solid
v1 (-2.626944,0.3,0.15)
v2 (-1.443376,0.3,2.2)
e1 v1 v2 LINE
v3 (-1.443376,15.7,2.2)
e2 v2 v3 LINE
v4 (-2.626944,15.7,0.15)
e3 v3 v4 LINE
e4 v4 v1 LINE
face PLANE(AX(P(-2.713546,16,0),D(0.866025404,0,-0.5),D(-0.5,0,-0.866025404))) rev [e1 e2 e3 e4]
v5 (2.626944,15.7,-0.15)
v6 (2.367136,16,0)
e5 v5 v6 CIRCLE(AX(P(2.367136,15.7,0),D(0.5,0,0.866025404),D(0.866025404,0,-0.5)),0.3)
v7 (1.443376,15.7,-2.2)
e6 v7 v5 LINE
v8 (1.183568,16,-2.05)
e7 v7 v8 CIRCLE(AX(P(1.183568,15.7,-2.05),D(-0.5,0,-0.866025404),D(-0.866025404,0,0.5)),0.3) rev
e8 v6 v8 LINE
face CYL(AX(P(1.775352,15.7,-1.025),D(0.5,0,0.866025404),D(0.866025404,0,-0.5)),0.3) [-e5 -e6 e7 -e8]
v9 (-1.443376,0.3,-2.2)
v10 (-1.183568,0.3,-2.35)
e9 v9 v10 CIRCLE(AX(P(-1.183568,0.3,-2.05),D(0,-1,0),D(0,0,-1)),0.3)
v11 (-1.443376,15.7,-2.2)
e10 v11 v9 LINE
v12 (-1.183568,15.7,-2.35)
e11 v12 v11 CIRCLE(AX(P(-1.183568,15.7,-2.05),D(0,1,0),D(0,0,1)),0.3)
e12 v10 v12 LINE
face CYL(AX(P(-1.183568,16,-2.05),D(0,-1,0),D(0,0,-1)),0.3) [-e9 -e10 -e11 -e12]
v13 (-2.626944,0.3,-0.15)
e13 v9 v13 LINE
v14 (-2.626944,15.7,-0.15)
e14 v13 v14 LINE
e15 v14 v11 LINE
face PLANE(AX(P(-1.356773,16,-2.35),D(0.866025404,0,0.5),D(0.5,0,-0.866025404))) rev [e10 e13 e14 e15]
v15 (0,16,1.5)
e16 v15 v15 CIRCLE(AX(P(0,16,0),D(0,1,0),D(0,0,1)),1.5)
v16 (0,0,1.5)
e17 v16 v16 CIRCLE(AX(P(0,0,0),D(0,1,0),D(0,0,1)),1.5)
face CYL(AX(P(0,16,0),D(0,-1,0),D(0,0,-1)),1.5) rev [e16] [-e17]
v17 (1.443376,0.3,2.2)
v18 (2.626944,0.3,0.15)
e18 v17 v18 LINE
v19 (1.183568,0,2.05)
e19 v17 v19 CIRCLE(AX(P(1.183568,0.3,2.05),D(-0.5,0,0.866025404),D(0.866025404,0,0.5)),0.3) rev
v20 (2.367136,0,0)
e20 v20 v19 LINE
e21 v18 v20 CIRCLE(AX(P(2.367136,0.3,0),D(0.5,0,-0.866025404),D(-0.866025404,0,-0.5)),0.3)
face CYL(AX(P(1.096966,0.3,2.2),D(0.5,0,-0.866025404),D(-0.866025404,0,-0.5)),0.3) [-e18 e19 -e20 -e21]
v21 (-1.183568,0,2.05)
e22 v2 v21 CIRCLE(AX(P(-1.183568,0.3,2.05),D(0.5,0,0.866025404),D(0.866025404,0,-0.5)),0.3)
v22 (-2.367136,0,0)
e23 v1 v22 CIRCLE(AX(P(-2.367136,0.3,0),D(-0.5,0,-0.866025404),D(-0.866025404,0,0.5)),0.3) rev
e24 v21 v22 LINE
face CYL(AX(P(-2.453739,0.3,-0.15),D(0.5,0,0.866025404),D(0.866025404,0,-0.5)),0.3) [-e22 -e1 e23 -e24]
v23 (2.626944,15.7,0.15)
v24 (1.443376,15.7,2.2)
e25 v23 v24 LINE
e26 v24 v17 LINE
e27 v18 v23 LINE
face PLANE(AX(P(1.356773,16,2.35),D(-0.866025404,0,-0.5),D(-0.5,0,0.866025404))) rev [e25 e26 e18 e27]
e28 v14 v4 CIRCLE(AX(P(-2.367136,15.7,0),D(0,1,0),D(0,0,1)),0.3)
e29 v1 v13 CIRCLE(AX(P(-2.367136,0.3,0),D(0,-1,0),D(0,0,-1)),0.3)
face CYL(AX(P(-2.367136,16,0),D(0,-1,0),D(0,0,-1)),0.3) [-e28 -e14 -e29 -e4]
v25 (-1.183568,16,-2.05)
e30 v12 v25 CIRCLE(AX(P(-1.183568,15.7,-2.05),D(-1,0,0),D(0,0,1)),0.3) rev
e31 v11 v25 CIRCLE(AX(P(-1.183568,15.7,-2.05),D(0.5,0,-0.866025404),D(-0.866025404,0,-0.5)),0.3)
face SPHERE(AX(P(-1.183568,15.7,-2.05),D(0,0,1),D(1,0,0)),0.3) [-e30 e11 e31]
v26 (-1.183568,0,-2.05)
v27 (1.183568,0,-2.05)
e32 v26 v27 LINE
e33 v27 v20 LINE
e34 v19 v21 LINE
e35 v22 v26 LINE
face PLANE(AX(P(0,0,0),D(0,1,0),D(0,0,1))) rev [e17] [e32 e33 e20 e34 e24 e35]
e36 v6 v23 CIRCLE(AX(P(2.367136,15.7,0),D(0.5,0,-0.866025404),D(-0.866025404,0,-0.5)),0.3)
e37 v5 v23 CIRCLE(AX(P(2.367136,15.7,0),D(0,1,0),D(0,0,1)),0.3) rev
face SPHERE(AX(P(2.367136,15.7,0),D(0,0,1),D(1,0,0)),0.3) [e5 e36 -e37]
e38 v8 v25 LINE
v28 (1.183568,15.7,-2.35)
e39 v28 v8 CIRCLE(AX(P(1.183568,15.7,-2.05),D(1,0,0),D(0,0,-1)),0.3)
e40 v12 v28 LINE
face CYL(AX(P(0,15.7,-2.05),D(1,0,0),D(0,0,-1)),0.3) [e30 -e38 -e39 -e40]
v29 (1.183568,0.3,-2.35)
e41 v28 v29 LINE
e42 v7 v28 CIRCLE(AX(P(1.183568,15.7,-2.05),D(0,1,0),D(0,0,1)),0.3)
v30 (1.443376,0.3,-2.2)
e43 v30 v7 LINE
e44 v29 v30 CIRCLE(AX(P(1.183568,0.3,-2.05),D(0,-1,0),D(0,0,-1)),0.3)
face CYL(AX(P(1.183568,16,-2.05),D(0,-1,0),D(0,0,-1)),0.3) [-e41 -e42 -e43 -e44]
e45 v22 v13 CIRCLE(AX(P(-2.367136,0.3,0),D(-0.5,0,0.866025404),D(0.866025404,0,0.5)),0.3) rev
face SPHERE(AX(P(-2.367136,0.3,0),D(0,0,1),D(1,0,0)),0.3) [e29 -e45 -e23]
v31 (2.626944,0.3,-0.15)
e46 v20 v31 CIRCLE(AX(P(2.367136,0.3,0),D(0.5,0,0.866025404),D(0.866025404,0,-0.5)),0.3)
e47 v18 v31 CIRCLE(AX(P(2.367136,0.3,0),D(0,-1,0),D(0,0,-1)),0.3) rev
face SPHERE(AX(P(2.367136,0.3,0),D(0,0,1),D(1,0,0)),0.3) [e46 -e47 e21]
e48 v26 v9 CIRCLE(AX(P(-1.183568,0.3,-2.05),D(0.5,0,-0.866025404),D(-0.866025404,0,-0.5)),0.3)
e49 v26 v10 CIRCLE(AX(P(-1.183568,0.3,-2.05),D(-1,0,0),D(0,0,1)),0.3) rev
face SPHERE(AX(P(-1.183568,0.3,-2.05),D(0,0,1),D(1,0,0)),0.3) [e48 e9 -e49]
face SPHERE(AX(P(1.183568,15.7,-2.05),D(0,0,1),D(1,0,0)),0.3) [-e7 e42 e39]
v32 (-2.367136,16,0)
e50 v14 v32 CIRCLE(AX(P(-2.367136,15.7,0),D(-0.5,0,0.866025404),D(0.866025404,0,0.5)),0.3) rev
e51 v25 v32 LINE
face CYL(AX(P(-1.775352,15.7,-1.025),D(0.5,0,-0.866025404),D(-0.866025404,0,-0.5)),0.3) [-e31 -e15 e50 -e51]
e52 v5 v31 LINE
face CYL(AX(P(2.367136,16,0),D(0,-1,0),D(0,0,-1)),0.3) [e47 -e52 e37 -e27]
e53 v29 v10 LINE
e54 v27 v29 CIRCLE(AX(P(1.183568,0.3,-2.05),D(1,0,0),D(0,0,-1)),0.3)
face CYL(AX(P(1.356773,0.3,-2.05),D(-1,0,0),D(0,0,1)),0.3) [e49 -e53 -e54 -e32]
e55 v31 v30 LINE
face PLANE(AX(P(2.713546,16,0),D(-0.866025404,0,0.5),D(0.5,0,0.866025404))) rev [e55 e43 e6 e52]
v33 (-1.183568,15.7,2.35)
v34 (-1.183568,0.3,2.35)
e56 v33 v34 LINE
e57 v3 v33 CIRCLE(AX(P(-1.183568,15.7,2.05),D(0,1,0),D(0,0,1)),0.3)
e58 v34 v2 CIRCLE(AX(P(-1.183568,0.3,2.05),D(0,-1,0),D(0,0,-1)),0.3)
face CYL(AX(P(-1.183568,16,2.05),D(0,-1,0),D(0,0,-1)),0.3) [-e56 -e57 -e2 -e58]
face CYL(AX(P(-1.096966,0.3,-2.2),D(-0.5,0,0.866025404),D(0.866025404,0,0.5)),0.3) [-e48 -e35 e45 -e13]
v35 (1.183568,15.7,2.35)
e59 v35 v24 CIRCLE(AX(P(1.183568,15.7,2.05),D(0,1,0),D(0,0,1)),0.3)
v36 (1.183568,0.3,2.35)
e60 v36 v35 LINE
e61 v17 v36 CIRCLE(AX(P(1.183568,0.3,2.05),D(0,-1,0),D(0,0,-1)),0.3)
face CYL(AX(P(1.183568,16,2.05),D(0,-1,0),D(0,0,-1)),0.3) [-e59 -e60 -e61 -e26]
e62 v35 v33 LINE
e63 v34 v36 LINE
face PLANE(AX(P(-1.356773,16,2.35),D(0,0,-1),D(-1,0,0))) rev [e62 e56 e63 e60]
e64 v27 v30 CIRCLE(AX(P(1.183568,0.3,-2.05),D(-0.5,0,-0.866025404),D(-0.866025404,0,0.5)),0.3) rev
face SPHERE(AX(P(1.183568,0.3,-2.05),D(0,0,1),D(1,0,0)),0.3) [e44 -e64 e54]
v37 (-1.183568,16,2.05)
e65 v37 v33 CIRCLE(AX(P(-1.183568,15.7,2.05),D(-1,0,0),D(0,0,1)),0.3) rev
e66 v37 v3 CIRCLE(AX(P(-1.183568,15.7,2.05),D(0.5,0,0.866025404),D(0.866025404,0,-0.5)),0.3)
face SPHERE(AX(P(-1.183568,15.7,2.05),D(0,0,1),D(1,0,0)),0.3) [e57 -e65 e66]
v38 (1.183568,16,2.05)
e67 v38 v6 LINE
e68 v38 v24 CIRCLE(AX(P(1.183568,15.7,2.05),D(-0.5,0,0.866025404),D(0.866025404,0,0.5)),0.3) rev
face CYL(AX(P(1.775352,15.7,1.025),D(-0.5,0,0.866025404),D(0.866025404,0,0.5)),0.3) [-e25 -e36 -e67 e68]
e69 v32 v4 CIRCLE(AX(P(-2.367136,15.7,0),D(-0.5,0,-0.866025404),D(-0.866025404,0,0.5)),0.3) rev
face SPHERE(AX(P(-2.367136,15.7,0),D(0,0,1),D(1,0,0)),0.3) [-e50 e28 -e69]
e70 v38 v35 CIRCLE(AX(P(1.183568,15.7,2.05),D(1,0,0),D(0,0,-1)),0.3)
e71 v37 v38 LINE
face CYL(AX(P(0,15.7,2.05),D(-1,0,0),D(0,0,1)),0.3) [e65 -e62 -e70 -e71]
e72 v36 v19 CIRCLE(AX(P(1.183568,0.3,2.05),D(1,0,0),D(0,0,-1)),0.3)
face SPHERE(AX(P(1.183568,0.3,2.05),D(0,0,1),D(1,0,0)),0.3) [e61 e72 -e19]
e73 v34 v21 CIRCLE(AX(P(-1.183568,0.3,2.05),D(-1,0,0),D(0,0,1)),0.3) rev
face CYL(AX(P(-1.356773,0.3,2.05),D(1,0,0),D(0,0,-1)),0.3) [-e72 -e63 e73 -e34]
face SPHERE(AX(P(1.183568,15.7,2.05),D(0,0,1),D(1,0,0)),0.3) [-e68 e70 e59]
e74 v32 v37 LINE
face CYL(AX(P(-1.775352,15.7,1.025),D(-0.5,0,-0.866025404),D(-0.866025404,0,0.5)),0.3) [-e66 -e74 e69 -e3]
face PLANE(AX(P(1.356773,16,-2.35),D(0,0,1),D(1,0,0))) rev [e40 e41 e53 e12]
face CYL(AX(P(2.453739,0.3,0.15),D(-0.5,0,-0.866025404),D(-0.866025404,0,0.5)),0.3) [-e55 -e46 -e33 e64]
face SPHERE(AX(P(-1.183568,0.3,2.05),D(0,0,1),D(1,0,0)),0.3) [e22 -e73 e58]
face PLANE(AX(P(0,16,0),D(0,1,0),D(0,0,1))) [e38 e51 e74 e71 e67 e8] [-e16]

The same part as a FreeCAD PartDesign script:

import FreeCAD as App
import Part
import Sketcher

V = App.Vector
Q = App.Units.Quantity


def edges_at(feature, points):
    """Names of the edges that pass closest to the given points."""
    edges = feature.Shape.Edges
    near = lambda p: min(range(len(edges)), key=lambda i: edges[i].distToShape(Part.Vertex(*p))[0])
    return sorted({f"Edge{near(p) + 1}" for p in points})

doc = App.newDocument("Part")
body = doc.addObject("PartDesign::Body", "Body")

# Sketch on XZ plane
sketch1 = body.newObject("Sketcher::SketchObject", "Sketch")
sketch1.AttachmentSupport = (doc.getObject("XZ_Plane"), [""])
sketch1.MapMode = "FlatFace"
sketch1.addGeometry([
    Part.LineSegment(V(2.713546, 0, 0), V(1.356773, -2.35, 0)),  # 0
    Part.LineSegment(V(1.356773, -2.35, 0), V(-1.356773, -2.35, 0)),  # 1
    Part.LineSegment(V(-1.356773, -2.35, 0), V(-2.713546, 0, 0)),  # 2
    Part.LineSegment(V(-2.713546, 0, 0), V(-1.356773, 2.35, 0)),  # 3
    Part.LineSegment(V(-1.356773, 2.35, 0), V(1.356773, 2.35, 0)),  # 4
    Part.LineSegment(V(1.356773, 2.35, 0), V(2.713546, 0, 0)),  # 5
    Part.Circle(V(0, 0, 0), V(0, 0, 1), 1.5),  # 6
], False)
sketch1.addConstraint([
    Sketcher.Constraint("Coincident", 0, 2, 1, 1),
    Sketcher.Constraint("Coincident", 1, 2, 2, 1),
    Sketcher.Constraint("Coincident", 2, 2, 3, 1),
    Sketcher.Constraint("Coincident", 3, 2, 4, 1),
    Sketcher.Constraint("Coincident", 4, 2, 5, 1),
    Sketcher.Constraint("Coincident", 5, 2, 0, 1),
    Sketcher.Constraint("Horizontal", 1),
    Sketcher.Constraint("Horizontal", 4),
    Sketcher.Constraint("Coincident", 6, 3, -1, 1),
    Sketcher.Constraint("Symmetric", 0, 2, 3, 2, -1, 1),
    Sketcher.Constraint("Symmetric", 2, 2, 5, 2, -1, 1),
    Sketcher.Constraint("PointOnObject", 2, 2, -1),
    Sketcher.Constraint("Parallel", 2, 5),
    Sketcher.Constraint("Vertical", 1, 2, 3, 2),
    Sketcher.Constraint("Diameter", 6, 3.0),
    Sketcher.Constraint("Angle", 0, Q("-120 deg")),
    Sketcher.Constraint("DistanceY", 1, 2, 3, 2, 4.7),
    Sketcher.Constraint("DistanceX", 1, 2, 1, 1, 2.713546),
])
pad1 = body.newObject("PartDesign::Pad", "Pad")
pad1.Profile = sketch1
pad1.Length = 16
pad1.Reversed = True
doc.recompute()

fillet = body.newObject("PartDesign::Fillet", "Fillet")
fillet.Base = (pad1, edges_at(pad1, [
    (0, 16, -2.35),
    (1.357, 8, 2.35),
    (-1.357, 8, 2.35),
    (-2.714, 8, 0),
    (-1.357, 8, -2.35),
    (1.357, 8, -2.35),
    (2.714, 8, 0),
    (-2.035, 16, -1.175),
    (-2.035, 16, 1.175),
    (0, 16, 2.35),
    (2.035, 16, 1.175),
    (0, 0, 2.35),
    (-2.035, 0, 1.175),
    (-2.035, 0, -1.175),
    (2.035, 16, -1.175),
    (0, 0, -2.35),
    (2.035, 0, -1.175),
    (2.035, 0, 1.175),
]))
fillet.Radius = 0.3

doc.recompute()
